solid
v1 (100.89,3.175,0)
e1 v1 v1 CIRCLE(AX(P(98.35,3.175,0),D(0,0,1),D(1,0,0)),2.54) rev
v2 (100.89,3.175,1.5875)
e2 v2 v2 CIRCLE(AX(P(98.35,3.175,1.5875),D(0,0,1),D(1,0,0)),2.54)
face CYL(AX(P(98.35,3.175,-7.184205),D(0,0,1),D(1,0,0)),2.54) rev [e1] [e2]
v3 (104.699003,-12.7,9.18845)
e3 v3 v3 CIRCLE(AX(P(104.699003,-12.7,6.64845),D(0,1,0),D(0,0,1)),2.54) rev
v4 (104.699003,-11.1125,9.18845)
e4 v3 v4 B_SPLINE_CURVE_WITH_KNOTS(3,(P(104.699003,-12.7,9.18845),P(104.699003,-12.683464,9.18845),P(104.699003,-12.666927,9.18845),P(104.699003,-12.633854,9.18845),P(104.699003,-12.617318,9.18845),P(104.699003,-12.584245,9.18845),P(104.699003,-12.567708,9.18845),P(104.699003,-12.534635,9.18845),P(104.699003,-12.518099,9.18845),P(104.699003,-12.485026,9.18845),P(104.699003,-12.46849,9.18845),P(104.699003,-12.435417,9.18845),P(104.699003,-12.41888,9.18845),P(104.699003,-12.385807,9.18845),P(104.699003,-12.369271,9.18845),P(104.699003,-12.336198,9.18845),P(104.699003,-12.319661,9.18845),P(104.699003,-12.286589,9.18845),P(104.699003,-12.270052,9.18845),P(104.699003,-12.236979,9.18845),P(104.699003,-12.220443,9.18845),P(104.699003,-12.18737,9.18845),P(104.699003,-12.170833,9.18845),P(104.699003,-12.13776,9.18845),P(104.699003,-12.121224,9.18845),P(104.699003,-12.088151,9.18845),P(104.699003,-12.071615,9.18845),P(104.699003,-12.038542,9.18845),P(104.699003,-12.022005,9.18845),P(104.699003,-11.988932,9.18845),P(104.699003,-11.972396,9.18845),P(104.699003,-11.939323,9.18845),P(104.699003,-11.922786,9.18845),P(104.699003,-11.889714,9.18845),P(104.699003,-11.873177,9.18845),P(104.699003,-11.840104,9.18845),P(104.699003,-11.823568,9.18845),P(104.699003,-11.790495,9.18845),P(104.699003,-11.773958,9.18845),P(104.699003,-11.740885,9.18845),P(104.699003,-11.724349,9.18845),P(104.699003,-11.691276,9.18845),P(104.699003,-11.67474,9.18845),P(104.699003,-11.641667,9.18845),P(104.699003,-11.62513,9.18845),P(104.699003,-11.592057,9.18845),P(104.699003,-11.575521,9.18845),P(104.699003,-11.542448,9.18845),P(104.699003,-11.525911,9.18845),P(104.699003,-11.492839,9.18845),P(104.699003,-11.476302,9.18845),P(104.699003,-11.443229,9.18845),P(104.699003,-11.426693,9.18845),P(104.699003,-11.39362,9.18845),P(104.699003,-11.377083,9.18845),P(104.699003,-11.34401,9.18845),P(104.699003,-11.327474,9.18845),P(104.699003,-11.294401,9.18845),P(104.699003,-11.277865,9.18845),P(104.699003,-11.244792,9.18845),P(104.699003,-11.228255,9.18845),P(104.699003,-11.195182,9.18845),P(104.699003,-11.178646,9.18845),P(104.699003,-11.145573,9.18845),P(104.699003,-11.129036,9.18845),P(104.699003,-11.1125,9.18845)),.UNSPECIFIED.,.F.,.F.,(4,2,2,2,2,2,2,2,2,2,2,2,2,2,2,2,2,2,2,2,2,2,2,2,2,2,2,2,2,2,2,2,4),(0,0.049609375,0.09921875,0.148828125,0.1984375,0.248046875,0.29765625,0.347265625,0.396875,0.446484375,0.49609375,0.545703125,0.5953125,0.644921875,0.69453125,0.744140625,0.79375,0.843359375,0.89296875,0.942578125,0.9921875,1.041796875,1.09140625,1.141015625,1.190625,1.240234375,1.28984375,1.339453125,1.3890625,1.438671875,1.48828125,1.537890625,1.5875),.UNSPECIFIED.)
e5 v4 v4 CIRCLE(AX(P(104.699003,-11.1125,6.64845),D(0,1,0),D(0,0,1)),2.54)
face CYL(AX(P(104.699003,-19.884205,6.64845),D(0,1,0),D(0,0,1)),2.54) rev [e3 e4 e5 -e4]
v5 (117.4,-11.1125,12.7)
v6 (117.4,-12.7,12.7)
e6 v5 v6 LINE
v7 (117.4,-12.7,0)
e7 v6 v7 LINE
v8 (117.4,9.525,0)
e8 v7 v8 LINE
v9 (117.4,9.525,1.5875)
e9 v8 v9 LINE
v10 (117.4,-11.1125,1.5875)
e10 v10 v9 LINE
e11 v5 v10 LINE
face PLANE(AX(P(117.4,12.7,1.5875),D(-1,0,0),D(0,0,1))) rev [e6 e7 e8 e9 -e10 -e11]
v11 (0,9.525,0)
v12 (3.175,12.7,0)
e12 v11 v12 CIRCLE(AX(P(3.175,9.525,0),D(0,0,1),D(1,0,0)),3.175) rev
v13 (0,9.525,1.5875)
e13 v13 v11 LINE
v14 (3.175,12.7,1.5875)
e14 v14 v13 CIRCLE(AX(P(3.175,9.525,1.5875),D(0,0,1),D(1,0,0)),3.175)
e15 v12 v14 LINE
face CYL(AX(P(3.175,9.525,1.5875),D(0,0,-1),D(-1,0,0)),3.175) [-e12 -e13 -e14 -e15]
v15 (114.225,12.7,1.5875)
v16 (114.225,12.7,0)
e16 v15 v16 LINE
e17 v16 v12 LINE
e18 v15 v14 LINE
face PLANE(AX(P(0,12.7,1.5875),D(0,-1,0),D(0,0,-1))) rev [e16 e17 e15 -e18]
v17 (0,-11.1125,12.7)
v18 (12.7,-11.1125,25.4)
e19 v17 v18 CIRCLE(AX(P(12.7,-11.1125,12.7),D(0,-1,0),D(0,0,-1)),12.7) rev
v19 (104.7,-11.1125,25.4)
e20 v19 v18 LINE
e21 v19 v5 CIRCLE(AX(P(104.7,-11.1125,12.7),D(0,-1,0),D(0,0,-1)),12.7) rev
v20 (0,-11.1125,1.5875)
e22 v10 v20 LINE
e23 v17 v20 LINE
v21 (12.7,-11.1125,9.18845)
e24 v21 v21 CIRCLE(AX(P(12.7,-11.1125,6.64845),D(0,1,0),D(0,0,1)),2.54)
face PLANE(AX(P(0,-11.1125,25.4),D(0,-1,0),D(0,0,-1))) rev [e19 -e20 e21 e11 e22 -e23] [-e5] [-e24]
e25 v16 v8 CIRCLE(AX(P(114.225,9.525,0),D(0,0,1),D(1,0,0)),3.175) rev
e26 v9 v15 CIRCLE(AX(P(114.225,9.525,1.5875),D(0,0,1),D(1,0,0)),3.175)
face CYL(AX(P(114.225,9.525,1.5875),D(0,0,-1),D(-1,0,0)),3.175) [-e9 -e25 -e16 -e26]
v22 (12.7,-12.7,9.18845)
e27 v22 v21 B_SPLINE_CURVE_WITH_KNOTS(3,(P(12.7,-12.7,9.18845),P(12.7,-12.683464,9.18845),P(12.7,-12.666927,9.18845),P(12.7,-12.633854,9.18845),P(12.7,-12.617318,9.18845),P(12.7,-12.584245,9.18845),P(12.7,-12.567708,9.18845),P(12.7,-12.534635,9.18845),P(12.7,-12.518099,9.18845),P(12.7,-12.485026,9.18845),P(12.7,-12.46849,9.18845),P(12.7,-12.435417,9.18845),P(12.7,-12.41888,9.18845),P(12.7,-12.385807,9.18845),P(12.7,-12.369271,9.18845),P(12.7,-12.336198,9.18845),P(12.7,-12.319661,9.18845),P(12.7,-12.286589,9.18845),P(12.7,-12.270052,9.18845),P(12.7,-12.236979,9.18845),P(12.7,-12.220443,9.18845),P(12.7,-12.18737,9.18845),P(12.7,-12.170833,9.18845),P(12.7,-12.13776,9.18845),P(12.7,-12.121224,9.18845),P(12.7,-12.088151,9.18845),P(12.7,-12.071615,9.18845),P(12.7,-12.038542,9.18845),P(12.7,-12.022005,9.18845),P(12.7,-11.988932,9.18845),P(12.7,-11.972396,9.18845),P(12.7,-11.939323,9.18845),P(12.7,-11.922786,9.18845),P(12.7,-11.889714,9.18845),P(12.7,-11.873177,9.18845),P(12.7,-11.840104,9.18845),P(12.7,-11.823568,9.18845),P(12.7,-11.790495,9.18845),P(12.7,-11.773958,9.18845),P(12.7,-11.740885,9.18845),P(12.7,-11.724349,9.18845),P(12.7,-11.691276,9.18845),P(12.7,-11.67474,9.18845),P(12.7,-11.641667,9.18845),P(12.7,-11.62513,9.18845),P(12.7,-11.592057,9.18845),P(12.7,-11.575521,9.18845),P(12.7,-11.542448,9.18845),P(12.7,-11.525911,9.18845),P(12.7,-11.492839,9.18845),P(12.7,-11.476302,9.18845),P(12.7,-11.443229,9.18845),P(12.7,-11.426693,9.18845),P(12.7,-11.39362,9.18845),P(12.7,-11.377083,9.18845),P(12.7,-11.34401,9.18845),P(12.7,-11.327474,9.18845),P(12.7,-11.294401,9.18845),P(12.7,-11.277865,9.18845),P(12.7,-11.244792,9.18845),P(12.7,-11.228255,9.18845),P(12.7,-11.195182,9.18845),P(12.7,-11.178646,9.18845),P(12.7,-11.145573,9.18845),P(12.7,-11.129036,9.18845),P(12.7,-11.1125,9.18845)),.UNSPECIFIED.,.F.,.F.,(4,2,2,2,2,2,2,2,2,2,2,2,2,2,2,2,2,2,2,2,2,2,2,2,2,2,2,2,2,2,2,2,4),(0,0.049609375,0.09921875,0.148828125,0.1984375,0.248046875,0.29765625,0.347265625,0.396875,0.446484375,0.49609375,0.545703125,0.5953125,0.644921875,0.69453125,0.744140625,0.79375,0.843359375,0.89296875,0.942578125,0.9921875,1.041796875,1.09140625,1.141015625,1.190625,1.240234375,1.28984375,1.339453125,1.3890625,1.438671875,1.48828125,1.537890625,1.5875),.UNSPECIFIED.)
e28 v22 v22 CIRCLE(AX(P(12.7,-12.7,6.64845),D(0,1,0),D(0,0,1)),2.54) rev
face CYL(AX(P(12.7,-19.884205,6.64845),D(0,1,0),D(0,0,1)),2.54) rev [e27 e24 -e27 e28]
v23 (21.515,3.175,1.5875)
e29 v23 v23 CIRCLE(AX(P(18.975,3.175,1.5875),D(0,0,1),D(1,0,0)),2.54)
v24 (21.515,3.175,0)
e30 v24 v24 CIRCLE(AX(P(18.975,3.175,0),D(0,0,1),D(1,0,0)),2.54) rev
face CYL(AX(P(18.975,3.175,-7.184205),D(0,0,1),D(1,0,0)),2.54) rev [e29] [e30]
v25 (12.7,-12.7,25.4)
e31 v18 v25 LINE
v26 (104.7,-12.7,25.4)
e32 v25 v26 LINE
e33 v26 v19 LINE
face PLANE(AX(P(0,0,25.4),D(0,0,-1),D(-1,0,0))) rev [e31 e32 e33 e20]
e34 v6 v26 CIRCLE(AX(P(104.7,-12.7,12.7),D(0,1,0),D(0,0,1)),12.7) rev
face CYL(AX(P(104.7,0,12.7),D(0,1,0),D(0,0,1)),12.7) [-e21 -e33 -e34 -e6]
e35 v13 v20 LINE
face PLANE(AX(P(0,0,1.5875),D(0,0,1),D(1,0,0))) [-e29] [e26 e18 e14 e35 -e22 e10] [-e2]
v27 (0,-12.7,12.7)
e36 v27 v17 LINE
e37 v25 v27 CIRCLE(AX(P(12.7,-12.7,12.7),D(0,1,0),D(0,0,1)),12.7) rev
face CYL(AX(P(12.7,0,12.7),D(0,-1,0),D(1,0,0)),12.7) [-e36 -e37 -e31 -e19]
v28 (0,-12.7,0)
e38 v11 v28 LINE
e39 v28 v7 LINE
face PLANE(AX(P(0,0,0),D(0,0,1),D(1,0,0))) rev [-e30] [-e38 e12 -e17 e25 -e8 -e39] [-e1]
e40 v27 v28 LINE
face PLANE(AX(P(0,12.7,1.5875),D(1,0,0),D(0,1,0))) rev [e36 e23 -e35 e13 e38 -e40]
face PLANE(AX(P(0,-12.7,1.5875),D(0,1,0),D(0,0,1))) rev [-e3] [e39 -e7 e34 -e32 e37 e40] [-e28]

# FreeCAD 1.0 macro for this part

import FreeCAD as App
import Part
import Sketcher

V = App.Vector
Q = App.Units.Quantity


def edges_at(feature, points):
    """Names of the edges that pass closest to the given points."""
    edges = feature.Shape.Edges
    near = lambda p: min(range(len(edges)), key=lambda i: edges[i].distToShape(Part.Vertex(*p))[0])
    return sorted({f"Edge{near(p) + 1}" for p in points})

doc = App.newDocument("Part")
body = doc.addObject("PartDesign::Body", "Body")

# Sketch on XY plane
sketch1 = body.newObject("Sketcher::SketchObject", "Sketch")
sketch1.AttachmentSupport = (doc.getObject("XY_Plane"), [""])
sketch1.MapMode = "FlatFace"
sketch1.addGeometry(Part.LineSegment(V(0, 13, 0), V(0, -13, 0)), False)
sketch1.addGeometry(Part.LineSegment(V(0, -13, 0), V(117, -13, 0)), False)
sketch1.addGeometry(Part.LineSegment(V(117, -13, 0), V(117, 13, 0)), False)
sketch1.addGeometry(Part.LineSegment(V(117, 13, 0), V(0, 13, 0)), False)
sketch1.addConstraint(Sketcher.Constraint("Coincident", 0, 2, 1, 1))
sketch1.addConstraint(Sketcher.Constraint("Coincident", 1, 2, 2, 1))
sketch1.addConstraint(Sketcher.Constraint("Coincident", 2, 2, 3, 1))
sketch1.addConstraint(Sketcher.Constraint("Coincident", 3, 2, 0, 1))
sketch1.addConstraint(Sketcher.Constraint("Vertical", 0))
sketch1.addConstraint(Sketcher.Constraint("Horizontal", 1))
sketch1.addConstraint(Sketcher.Constraint("Vertical", 2))
sketch1.addConstraint(Sketcher.Constraint("Horizontal", 3))
sketch1.addConstraint(Sketcher.Constraint("Symmetric", 0, 2, 3, 2, -1, 1))
sketch1.addConstraint(Sketcher.Constraint("DistanceY", 0, 2, 0, 1, Q("1 in")))
sketch1.addConstraint(Sketcher.Constraint("DistanceX", 1, 1, 1, 2, Q("117.4 mm")))
pad1 = body.newObject("PartDesign::Pad", "Pad")
pad1.Profile = sketch1
pad1.Length = Q("0.0625 in")

# Sketch on XY plane
sketch2 = body.newObject("Sketcher::SketchObject", "Sketch001")
sketch2.AttachmentSupport = (doc.getObject("XY_Plane"), [""])
sketch2.MapMode = "FlatFace"
sketch2.AttachmentOffset = App.Placement(V(0, 0, 0.0625 * 25.4), App.Rotation())
sketch2.addGeometry(Part.LineSegment(V(0, -11.1, 0), V(0, -12.7, 0)), False)
sketch2.addGeometry(Part.LineSegment(V(0, -12.7, 0), V(117.4, -12.7, 0)), False)
sketch2.addGeometry(Part.LineSegment(V(117.4, -12.7, 0), V(117.4, -11.1, 0)), False)
sketch2.addGeometry(Part.LineSegment(V(117.4, -11.1, 0), V(0, -11.1, 0)), False)
sketch2.addConstraint(Sketcher.Constraint("Coincident", 0, 2, 1, 1))
sketch2.addConstraint(Sketcher.Constraint("Coincident", 1, 2, 2, 1))
sketch2.addConstraint(Sketcher.Constraint("Coincident", 2, 2, 3, 1))
sketch2.addConstraint(Sketcher.Constraint("Coincident", 3, 2, 0, 1))
sketch2.addConstraint(Sketcher.Constraint("Vertical", 0))
sketch2.addConstraint(Sketcher.Constraint("Horizontal", 1))
sketch2.addConstraint(Sketcher.Constraint("Vertical", 2))
sketch2.addConstraint(Sketcher.Constraint("Horizontal", 3))
sketch2.addConstraint(Sketcher.Constraint("PointOnObject", 0, 2, -2))
sketch2.addConstraint(Sketcher.Constraint("DistanceY", 0, 2, -1, 1, Q("0.5 in")))
sketch2.addConstraint(Sketcher.Constraint("DistanceY", 0, 2, 0, 1, Q("0.0625 in")))
sketch2.addConstraint(Sketcher.Constraint("DistanceX", 1, 1, 1, 2, Q("117.4 mm")))
pad2 = body.newObject("PartDesign::Pad", "Pad001")
pad2.Profile = sketch2
pad2.Length = Q("0.9375 in")

# Sketch on XZ plane
sketch3 = body.newObject("Sketcher::SketchObject", "Sketch002")
sketch3.AttachmentSupport = (doc.getObject("XZ_Plane"), [""])
sketch3.MapMode = "FlatFace"
sketch3.AttachmentOffset = App.Placement(V(0, 0, 0.4375 * 25.4), App.Rotation())
sketch3.addGeometry(Part.Circle(V(12.7, 6.6, 0), V(0, 0, 1), 2.5), False)
sketch3.addGeometry(Part.Circle(V(104.7, 6.6, 0), V(0, 0, 1), 2.5), False)
sketch3.addConstraint(Sketcher.Constraint("Equal", 0, 1))
sketch3.addConstraint(Sketcher.Constraint("Horizontal", 0, 3, 1, 3))
sketch3.addConstraint(Sketcher.Constraint("Diameter", 0, Q("0.2 in")))
sketch3.addConstraint(Sketcher.Constraint("DistanceX", -1, 1, 0, 3, Q("0.5 in")))
sketch3.addConstraint(Sketcher.Constraint("DistanceY", -1, 1, 0, 3, Q("6.64845 mm")))
sketch3.addConstraint(Sketcher.Constraint("DistanceX", -1, 1, 1, 3, Q("104.699003 mm")))
pocket1 = body.newObject("PartDesign::Pocket", "Pocket")
pocket1.Profile = sketch3
pocket1.Length = Q("0.0625 in")
pocket1.Reversed = True

# Sketch on XY plane
sketch4 = body.newObject("Sketcher::SketchObject", "Sketch003")
sketch4.AttachmentSupport = (doc.getObject("XY_Plane"), [""])
sketch4.MapMode = "FlatFace"
sketch4.AttachmentOffset = App.Placement(V(0, 0, 0.0625 * 25.4), App.Rotation())
sketch4.addGeometry(Part.Circle(V(19, 3.2, 0), V(0, 0, 1), 2.5), False)
sketch4.addGeometry(Part.Circle(V(98.3, 3.2, 0), V(0, 0, 1), 2.5), False)
sketch4.addConstraint(Sketcher.Constraint("Equal", 0, 1))
sketch4.addConstraint(Sketcher.Constraint("Horizontal", 0, 3, 1, 3))
sketch4.addConstraint(Sketcher.Constraint("Diameter", 0, Q("0.2 in")))
sketch4.addConstraint(Sketcher.Constraint("DistanceY", -1, 1, 0, 3, Q("0.125 in")))
sketch4.addConstraint(Sketcher.Constraint("DistanceX", 0, 3, 1, 3, Q("3.125 in")))
sketch4.addConstraint(Sketcher.Constraint("DistanceX", -1, 1, 0, 3, Q("18.975 mm")))
pocket2 = body.newObject("PartDesign::Pocket", "Pocket001")
pocket2.Profile = sketch4
pocket2.Length = Q("0.0625 in")
doc.recompute()

fillet = body.newObject("PartDesign::Fillet", "Fillet")
fillet.Base = (pocket2, edges_at(pocket2, [(0, -11.906, 25.4), (117.4, -11.906, 25.4)]))
fillet.Radius = Q("0.5 in")
doc.recompute()

fillet2 = body.newObject("PartDesign::Fillet", "Fillet001")
fillet2.Base = (fillet, edges_at(fillet, [(0, 12.7, 0.794), (117.4, 12.7, 0.794)]))
fillet2.Radius = Q("0.125 in")

doc.recompute()
